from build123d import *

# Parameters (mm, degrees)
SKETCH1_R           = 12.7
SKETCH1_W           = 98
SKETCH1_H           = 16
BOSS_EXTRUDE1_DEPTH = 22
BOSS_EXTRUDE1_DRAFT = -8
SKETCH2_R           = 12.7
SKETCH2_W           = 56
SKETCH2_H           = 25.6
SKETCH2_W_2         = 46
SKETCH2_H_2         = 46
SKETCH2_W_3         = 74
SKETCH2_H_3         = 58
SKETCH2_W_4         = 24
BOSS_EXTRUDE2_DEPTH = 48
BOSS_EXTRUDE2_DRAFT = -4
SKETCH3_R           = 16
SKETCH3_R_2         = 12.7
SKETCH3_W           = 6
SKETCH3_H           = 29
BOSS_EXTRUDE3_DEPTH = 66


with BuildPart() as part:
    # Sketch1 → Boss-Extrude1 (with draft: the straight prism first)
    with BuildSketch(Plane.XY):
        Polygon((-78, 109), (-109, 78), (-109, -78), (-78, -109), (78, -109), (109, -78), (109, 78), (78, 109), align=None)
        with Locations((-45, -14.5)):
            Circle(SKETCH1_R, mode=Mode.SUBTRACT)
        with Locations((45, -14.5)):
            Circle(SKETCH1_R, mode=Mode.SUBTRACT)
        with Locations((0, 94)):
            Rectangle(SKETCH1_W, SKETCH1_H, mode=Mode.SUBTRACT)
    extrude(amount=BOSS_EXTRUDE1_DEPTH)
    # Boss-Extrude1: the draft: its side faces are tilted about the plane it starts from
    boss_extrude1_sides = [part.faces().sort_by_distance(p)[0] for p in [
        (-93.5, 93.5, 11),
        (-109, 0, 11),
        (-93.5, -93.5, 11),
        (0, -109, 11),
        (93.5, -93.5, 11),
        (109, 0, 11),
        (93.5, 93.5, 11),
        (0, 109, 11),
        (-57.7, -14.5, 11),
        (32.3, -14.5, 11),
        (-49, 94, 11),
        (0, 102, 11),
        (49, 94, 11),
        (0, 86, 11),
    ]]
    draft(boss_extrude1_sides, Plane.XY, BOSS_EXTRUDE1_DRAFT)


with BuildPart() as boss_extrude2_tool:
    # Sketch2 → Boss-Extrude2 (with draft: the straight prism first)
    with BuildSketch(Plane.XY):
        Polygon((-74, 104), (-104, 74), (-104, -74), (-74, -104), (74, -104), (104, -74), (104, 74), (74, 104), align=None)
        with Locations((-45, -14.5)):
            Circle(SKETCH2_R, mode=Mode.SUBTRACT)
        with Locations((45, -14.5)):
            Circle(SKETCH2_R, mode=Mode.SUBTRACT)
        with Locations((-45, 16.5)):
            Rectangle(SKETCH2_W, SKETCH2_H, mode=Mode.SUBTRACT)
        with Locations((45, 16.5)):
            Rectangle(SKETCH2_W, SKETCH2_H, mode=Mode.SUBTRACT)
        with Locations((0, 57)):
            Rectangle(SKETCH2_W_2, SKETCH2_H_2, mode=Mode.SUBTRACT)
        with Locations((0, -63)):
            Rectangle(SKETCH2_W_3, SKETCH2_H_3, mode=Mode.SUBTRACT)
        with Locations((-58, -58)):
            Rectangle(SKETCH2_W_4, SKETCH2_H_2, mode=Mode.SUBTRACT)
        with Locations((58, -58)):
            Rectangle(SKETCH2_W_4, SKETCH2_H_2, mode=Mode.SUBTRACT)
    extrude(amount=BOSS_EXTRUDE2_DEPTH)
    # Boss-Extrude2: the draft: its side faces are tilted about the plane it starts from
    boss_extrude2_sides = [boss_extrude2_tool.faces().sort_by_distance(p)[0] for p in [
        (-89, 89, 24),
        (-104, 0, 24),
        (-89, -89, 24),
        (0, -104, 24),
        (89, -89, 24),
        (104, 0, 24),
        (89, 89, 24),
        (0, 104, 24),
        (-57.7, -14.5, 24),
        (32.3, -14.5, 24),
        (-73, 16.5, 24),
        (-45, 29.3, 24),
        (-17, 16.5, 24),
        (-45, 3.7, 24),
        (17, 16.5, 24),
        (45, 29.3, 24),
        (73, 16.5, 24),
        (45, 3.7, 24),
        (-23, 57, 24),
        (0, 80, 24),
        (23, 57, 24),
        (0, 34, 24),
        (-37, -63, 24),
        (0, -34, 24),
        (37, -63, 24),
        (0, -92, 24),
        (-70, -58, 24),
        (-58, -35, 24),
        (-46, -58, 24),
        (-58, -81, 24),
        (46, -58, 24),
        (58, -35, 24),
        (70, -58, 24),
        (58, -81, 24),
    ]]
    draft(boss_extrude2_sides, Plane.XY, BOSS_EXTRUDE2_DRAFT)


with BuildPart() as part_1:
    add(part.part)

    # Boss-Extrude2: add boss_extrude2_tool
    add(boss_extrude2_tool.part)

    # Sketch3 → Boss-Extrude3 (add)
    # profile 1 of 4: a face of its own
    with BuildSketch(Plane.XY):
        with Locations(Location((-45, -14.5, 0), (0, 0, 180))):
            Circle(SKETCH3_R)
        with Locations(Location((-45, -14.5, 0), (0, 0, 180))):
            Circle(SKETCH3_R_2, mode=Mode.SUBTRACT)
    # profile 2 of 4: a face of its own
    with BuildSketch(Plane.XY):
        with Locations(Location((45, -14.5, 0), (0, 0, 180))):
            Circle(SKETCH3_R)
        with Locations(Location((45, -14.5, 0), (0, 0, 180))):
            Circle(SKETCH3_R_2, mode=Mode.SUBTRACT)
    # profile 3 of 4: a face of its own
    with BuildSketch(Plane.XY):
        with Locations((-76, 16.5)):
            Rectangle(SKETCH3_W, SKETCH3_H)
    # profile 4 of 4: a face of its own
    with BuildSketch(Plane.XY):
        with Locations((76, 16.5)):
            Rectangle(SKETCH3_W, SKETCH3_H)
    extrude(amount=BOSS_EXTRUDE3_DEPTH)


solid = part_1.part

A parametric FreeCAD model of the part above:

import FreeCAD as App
import Part
import Sketcher

V = App.Vector


def faces_at(feature, points):
    """Names of the faces that lie closest to the given points."""
    faces = feature.Shape.Faces
    near = lambda p: min(range(len(faces)), key=lambda i: faces[i].distToShape(Part.Vertex(*p))[0])
    return sorted({f"Face{near(p) + 1}" for p in points})


def add_polygon(sketch, points):
    """Adds a closed chain of lines whose ends are joined by coincident constraints."""
    first, n = sketch.GeometryCount, len(points)
    for a, b in zip(points, points[1:] + points[:1]):
        sketch.addGeometry(Part.LineSegment(App.Vector(*a, 0), App.Vector(*b, 0)), False)
    for i in range(n):
        sketch.addConstraint(Sketcher.Constraint("Coincident", first + i, 2, first + (i + 1) % n, 1))

doc = App.newDocument("Part")
body = doc.addObject("PartDesign::Body", "Body")

# Sketch on XY plane
sketch1 = doc.addObject("Sketcher::SketchObject", "Sketch")
body.addObject(sketch1)
sketch1.AttachmentSupport = (doc.XY_Plane, [""])
sketch1.MapMode = "FlatFace"
add_polygon(sketch1, [(-78, 109), (-109, 78), (-109, -78), (-78, -109), (78, -109), (109, -78), (109, 78), (78, 109)])  # lines 0-7
sketch1.addGeometry(Part.Circle(V(-45, -14, 0), V(0, 0, 1), 13), False)  # 8
sketch1.addGeometry(Part.Circle(V(45, -14, 0), V(0, 0, 1), 13), False)  # 9
add_polygon(sketch1, [(49, 86), (-49, 86), (-49, 102), (49, 102)])  # lines 10-13
sketch1.addConstraint(Sketcher.Constraint("Vertical", 1))
sketch1.addConstraint(Sketcher.Constraint("Horizontal", 3))
sketch1.addConstraint(Sketcher.Constraint("Vertical", 5))
sketch1.addConstraint(Sketcher.Constraint("Horizontal", 7))
sketch1.addConstraint(Sketcher.Constraint("Horizontal", 10))
sketch1.addConstraint(Sketcher.Constraint("Vertical", 11))
sketch1.addConstraint(Sketcher.Constraint("Horizontal", 12))
sketch1.addConstraint(Sketcher.Constraint("Vertical", 13))
sketch1.addConstraint(Sketcher.Constraint("Equal", 8, 9))
sketch1.addConstraint(Sketcher.Constraint("Symmetric", 0, 2, 4, 2, -1, 1))
sketch1.addConstraint(Sketcher.Constraint("Symmetric", 2, 2, 6, 2, -1, 1))
sketch1.addConstraint(Sketcher.Constraint("Symmetric", 8, 3, 9, 3, -2))
sketch1.addConstraint(Sketcher.Constraint("Perpendicular", 0, 2))
sketch1.addConstraint(Sketcher.Constraint("Perpendicular", 2, 4))
sketch1.addConstraint(Sketcher.Constraint("Perpendicular", 4, 6))
sketch1.addConstraint(Sketcher.Constraint("Horizontal", 1, 2, 4, 2))
sketch1.addConstraint(Sketcher.Constraint("Vertical", 3, 2, 6, 2))
sketch1.addConstraint(Sketcher.Constraint("Equal", 7, 1))
sketch1.addConstraint(Sketcher.Constraint("Diameter", 8, 25.4))
sketch1.addConstraint(Sketcher.Constraint("DistanceX", 3, 1, 3, 2, 156.0))
sketch1.addConstraint(Sketcher.Constraint("DistanceX", 10, 2, 10, 1, 98.0))
sketch1.addConstraint(Sketcher.Constraint("DistanceY", 11, 1, 11, 2, 16.0))
sketch1.addConstraint(Sketcher.Constraint("DistanceX", 8, 3, -1, 1, 45.0))
sketch1.addConstraint(Sketcher.Constraint("DistanceX", 0, 2, -1, 1, 109.0))
sketch1.addConstraint(Sketcher.Constraint("DistanceX", 10, 2, -1, 1, 49.0))
sketch1.addConstraint(Sketcher.Constraint("DistanceY", -1, 1, 10, 2, 86.0))
sketch1.addConstraint(Sketcher.Constraint("DistanceY", 8, 3, -1, 1, 14.5))
pad1 = doc.addObject("PartDesign::Pad", "Pad")
body.addObject(pad1)
pad1.Profile = sketch1
pad1.Length = 22
doc.recompute()

draft = doc.addObject("PartDesign::Draft", "Draft")
body.addObject(draft)
draft.Base = (pad1, faces_at(pad1, [
    (-93.5, 93.5, 11),
    (-109, 0, 11),
    (-93.5, -93.5, 11),
    (0, -109, 11),
    (93.5, -93.5, 11),
    (109, 0, 11),
    (93.5, 93.5, 11),
    (0, 109, 11),
    (-57.7, -14.5, 11),
    (32.3, -14.5, 11),
    (-49, 94, 11),
    (0, 102, 11),
    (49, 94, 11),
    (0, 86, 11),
]))
draft.NeutralPlane = (doc.XY_Plane, [""])
draft.Angle = 8
draft.Reversed = True
body2 = doc.addObject("PartDesign::Body", "Body001")

# Sketch on XY plane
sketch2 = doc.addObject("Sketcher::SketchObject", "Sketch001")
body2.addObject(sketch2)
sketch2.AttachmentSupport = (doc.getObject("XY_Plane001"), [""])
sketch2.MapMode = "FlatFace"
add_polygon(sketch2, [(-74, 104), (-104, 74), (-104, -74), (-74, -104), (74, -104), (104, -74), (104, 74), (74, 104)])  # lines 0-7
add_polygon(sketch2, [(-46, -81), (-70, -81), (-70, -35), (-46, -35)])  # lines 8-11
sketch2.addGeometry(Part.Circle(V(-45, -14, 0), V(0, 0, 1), 13), False)  # 12
add_polygon(sketch2, [(37, -92), (-37, -92), (-37, -34), (37, -34)])  # lines 13-16
add_polygon(sketch2, [(70, -81), (46, -81), (46, -35), (70, -35)])  # lines 17-20
sketch2.addGeometry(Part.Circle(V(45, -14, 0), V(0, 0, 1), 13), False)  # 21
add_polygon(sketch2, [(-17, 4), (-73, 4), (-73, 29), (-17, 29)])  # lines 22-25
add_polygon(sketch2, [(73, 4), (17, 4), (17, 29), (73, 29)])  # lines 26-29
add_polygon(sketch2, [(23, 34), (-23, 34), (-23, 80), (23, 80)])  # lines 30-33
sketch2.addConstraint(Sketcher.Constraint("Vertical", 1))
sketch2.addConstraint(Sketcher.Constraint("Horizontal", 3))
sketch2.addConstraint(Sketcher.Constraint("Vertical", 5))
sketch2.addConstraint(Sketcher.Constraint("Horizontal", 7))
sketch2.addConstraint(Sketcher.Constraint("Horizontal", 8))
sketch2.addConstraint(Sketcher.Constraint("Vertical", 9))
sketch2.addConstraint(Sketcher.Constraint("Horizontal", 10))
sketch2.addConstraint(Sketcher.Constraint("Vertical", 11))
sketch2.addConstraint(Sketcher.Constraint("Horizontal", 13))
sketch2.addConstraint(Sketcher.Constraint("Vertical", 14))
sketch2.addConstraint(Sketcher.Constraint("Horizontal", 15))
sketch2.addConstraint(Sketcher.Constraint("Vertical", 16))
sketch2.addConstraint(Sketcher.Constraint("Horizontal", 17))
sketch2.addConstraint(Sketcher.Constraint("Vertical", 18))
sketch2.addConstraint(Sketcher.Constraint("Horizontal", 19))
sketch2.addConstraint(Sketcher.Constraint("Vertical", 20))
sketch2.addConstraint(Sketcher.Constraint("Horizontal", 22))
sketch2.addConstraint(Sketcher.Constraint("Vertical", 23))
sketch2.addConstraint(Sketcher.Constraint("Horizontal", 24))
sketch2.addConstraint(Sketcher.Constraint("Vertical", 25))
sketch2.addConstraint(Sketcher.Constraint("Horizontal", 26))
sketch2.addConstraint(Sketcher.Constraint("Vertical", 27))
sketch2.addConstraint(Sketcher.Constraint("Horizontal", 28))
sketch2.addConstraint(Sketcher.Constraint("Vertical", 29))
sketch2.addConstraint(Sketcher.Constraint("Horizontal", 30))
sketch2.addConstraint(Sketcher.Constraint("Vertical", 31))
sketch2.addConstraint(Sketcher.Constraint("Horizontal", 32))
sketch2.addConstraint(Sketcher.Constraint("Vertical", 33))
sketch2.addConstraint(Sketcher.Constraint("Equal", 12, 21))
sketch2.addConstraint(Sketcher.Constraint("Symmetric", 0, 2, 4, 2, -1, 1))
sketch2.addConstraint(Sketcher.Constraint("Symmetric", 2, 2, 6, 2, -1, 1))
sketch2.addConstraint(Sketcher.Constraint("Symmetric", 12, 3, 21, 3, -2))
sketch2.addConstraint(Sketcher.Constraint("Symmetric", 11, 2, 17, 2, -2))
sketch2.addConstraint(Sketcher.Constraint("Symmetric", 9, 2, 19, 2, -2))
sketch2.addConstraint(Sketcher.Constraint("Symmetric", 25, 2, 26, 2, -2))
sketch2.addConstraint(Sketcher.Constraint("Symmetric", 23, 2, 28, 2, -2))
sketch2.addConstraint(Sketcher.Constraint("Perpendicular", 0, 2))
sketch2.addConstraint(Sketcher.Constraint("Perpendicular", 2, 4))
sketch2.addConstraint(Sketcher.Constraint("Perpendicular", 4, 6))
sketch2.addConstraint(Sketcher.Constraint("Horizontal", 1, 2, 4, 2))
sketch2.addConstraint(Sketcher.Constraint("Vertical", 3, 2, 6, 2))
sketch2.addConstraint(Sketcher.Constraint("Equal", 7, 1))
sketch2.addConstraint(Sketcher.Constraint("Equal", 32, 9))
sketch2.addConstraint(Sketcher.Constraint("Equal", 20, 31))
sketch2.addConstraint(Sketcher.Constraint("Diameter", 12, 25.4))
sketch2.addConstraint(Sketcher.Constraint("DistanceX", 3, 1, 3, 2, 148.0))
sketch2.addConstraint(Sketcher.Constraint("DistanceX", 8, 2, 8, 1, 24.0))
sketch2.addConstraint(Sketcher.Constraint("DistanceX", 13, 2, 13, 1, 74.0))
sketch2.addConstraint(Sketcher.Constraint("DistanceX", 22, 2, 22, 1, 56.0))
sketch2.addConstraint(Sketcher.Constraint("DistanceX", 30, 2, 30, 1, 46.0))
sketch2.addConstraint(Sketcher.Constraint("DistanceY", 14, 1, 14, 2, 58.0))
sketch2.addConstraint(Sketcher.Constraint("DistanceY", 23, 1, 23, 2, 25.6))
sketch2.addConstraint(Sketcher.Constraint("DistanceX", 12, 3, -1, 1, 45.0))
sketch2.addConstraint(Sketcher.Constraint("DistanceX", 0, 2, -1, 1, 104.0))
sketch2.addConstraint(Sketcher.Constraint("DistanceX", 8, 2, -1, 1, 70.0))
sketch2.addConstraint(Sketcher.Constraint("DistanceY", 8, 2, -1, 1, 81.0))
sketch2.addConstraint(Sketcher.Constraint("DistanceX", 13, 2, -1, 1, 37.0))
sketch2.addConstraint(Sketcher.Constraint("DistanceY", 13, 2, -1, 1, 92.0))
sketch2.addConstraint(Sketcher.Constraint("DistanceX", 22, 2, -1, 1, 73.0))
sketch2.addConstraint(Sketcher.Constraint("DistanceX", 30, 2, -1, 1, 23.0))
sketch2.addConstraint(Sketcher.Constraint("DistanceY", -1, 1, 30, 2, 34.0))
sketch2.addConstraint(Sketcher.Constraint("DistanceY", 12, 3, -1, 1, 14.5))
sketch2.addConstraint(Sketcher.Constraint("DistanceY", -1, 1, 22, 2, 3.7))
pad2 = doc.addObject("PartDesign::Pad", "Pad001")
body2.addObject(pad2)
pad2.Profile = sketch2
pad2.Length = 48
doc.recompute()

draft2 = doc.addObject("PartDesign::Draft", "Draft001")
body2.addObject(draft2)
draft2.Base = (pad2, faces_at(pad2, [
    (-89, 89, 24),
    (-104, 0, 24),
    (-89, -89, 24),
    (0, -104, 24),
    (89, -89, 24),
    (104, 0, 24),
    (89, 89, 24),
    (0, 104, 24),
    (-57.7, -14.5, 24),
    (32.3, -14.5, 24),
    (-73, 16.5, 24),
    (-45, 29.3, 24),
    (-17, 16.5, 24),
    (-45, 3.7, 24),
    (17, 16.5, 24),
    (45, 29.3, 24),
    (73, 16.5, 24),
    (45, 3.7, 24),
    (-23, 57, 24),
    (0, 80, 24),
    (23, 57, 24),
    (0, 34, 24),
    (-37, -63, 24),
    (0, -34, 24),
    (37, -63, 24),
    (0, -92, 24),
    (-70, -58, 24),
    (-58, -35, 24),
    (-46, -58, 24),
    (-58, -81, 24),
    (46, -58, 24),
    (58, -35, 24),
    (70, -58, 24),
    (58, -81, 24),
]))
draft2.NeutralPlane = (doc.getObject("XY_Plane001"), [""])
draft2.Angle = 4
draft2.Reversed = True
doc.recompute()

boolean = doc.addObject("PartDesign::Boolean", "Boolean")
body.addObject(boolean)
boolean.Type = "Fuse"
boolean.addObjects([body2])

# Sketch on XY plane
sketch3 = doc.addObject("Sketcher::SketchObject", "Sketch002")
body.addObject(sketch3)
sketch3.AttachmentSupport = (doc.XY_Plane, [""])
sketch3.MapMode = "FlatFace"
sketch3.addGeometry(Part.Circle(V(-45, -14, 0), V(0, 0, 1), 16), False)  # 0
sketch3.addGeometry(Part.Circle(V(-45, -14, 0), V(0, 0, 1), 13), False)  # 1
sketch3.addGeometry(Part.Circle(V(45, -14, 0), V(0, 0, 1), 16), False)  # 2
sketch3.addGeometry(Part.Circle(V(45, -14, 0), V(0, 0, 1), 13), False)  # 3
add_polygon(sketch3, [(-79, 31), (-79, 2), (-73, 2), (-73, 31)])  # lines 4-7
add_polygon(sketch3, [(73, 31), (73, 2), (79, 2), (79, 31)])  # lines 8-11
sketch3.addConstraint(Sketcher.Constraint("Vertical", 4))
sketch3.addConstraint(Sketcher.Constraint("Horizontal", 5))
sketch3.addConstraint(Sketcher.Constraint("Vertical", 6))
sketch3.addConstraint(Sketcher.Constraint("Horizontal", 7))
sketch3.addConstraint(Sketcher.Constraint("Vertical", 8))
sketch3.addConstraint(Sketcher.Constraint("Horizontal", 9))
sketch3.addConstraint(Sketcher.Constraint("Vertical", 10))
sketch3.addConstraint(Sketcher.Constraint("Horizontal", 11))
sketch3.addConstraint(Sketcher.Constraint("Coincident", 1, 3, 0, 3))
sketch3.addConstraint(Sketcher.Constraint("Coincident", 3, 3, 2, 3))
sketch3.addConstraint(Sketcher.Constraint("Equal", 0, 2))
sketch3.addConstraint(Sketcher.Constraint("Equal", 1, 3))
sketch3.addConstraint(Sketcher.Constraint("Symmetric", 0, 3, 2, 3, -2))
sketch3.addConstraint(Sketcher.Constraint("Symmetric", 5, 2, 8, 2, -2))
sketch3.addConstraint(Sketcher.Constraint("Symmetric", 7, 2, 10, 2, -2))
sketch3.addConstraint(Sketcher.Constraint("Diameter", 0, 32.0))
sketch3.addConstraint(Sketcher.Constraint("Diameter", 1, 25.4))
sketch3.addConstraint(Sketcher.Constraint("DistanceX", 5, 1, 5, 2, 6.0))
sketch3.addConstraint(Sketcher.Constraint("DistanceY", 4, 2, 4, 1, 29.0))
sketch3.addConstraint(Sketcher.Constraint("DistanceX", 0, 3, -1, 1, 45.0))
sketch3.addConstraint(Sketcher.Constraint("DistanceX", 4, 2, -1, 1, 79.0))
sketch3.addConstraint(Sketcher.Constraint("DistanceY", -1, 1, 4, 2, 2.0))
sketch3.addConstraint(Sketcher.Constraint("DistanceY", 0, 3, -1, 1, 14.5))
pad3 = doc.addObject("PartDesign::Pad", "Pad002")
body.addObject(pad3)
pad3.Profile = sketch3
pad3.Length = 66

doc.recompute()
